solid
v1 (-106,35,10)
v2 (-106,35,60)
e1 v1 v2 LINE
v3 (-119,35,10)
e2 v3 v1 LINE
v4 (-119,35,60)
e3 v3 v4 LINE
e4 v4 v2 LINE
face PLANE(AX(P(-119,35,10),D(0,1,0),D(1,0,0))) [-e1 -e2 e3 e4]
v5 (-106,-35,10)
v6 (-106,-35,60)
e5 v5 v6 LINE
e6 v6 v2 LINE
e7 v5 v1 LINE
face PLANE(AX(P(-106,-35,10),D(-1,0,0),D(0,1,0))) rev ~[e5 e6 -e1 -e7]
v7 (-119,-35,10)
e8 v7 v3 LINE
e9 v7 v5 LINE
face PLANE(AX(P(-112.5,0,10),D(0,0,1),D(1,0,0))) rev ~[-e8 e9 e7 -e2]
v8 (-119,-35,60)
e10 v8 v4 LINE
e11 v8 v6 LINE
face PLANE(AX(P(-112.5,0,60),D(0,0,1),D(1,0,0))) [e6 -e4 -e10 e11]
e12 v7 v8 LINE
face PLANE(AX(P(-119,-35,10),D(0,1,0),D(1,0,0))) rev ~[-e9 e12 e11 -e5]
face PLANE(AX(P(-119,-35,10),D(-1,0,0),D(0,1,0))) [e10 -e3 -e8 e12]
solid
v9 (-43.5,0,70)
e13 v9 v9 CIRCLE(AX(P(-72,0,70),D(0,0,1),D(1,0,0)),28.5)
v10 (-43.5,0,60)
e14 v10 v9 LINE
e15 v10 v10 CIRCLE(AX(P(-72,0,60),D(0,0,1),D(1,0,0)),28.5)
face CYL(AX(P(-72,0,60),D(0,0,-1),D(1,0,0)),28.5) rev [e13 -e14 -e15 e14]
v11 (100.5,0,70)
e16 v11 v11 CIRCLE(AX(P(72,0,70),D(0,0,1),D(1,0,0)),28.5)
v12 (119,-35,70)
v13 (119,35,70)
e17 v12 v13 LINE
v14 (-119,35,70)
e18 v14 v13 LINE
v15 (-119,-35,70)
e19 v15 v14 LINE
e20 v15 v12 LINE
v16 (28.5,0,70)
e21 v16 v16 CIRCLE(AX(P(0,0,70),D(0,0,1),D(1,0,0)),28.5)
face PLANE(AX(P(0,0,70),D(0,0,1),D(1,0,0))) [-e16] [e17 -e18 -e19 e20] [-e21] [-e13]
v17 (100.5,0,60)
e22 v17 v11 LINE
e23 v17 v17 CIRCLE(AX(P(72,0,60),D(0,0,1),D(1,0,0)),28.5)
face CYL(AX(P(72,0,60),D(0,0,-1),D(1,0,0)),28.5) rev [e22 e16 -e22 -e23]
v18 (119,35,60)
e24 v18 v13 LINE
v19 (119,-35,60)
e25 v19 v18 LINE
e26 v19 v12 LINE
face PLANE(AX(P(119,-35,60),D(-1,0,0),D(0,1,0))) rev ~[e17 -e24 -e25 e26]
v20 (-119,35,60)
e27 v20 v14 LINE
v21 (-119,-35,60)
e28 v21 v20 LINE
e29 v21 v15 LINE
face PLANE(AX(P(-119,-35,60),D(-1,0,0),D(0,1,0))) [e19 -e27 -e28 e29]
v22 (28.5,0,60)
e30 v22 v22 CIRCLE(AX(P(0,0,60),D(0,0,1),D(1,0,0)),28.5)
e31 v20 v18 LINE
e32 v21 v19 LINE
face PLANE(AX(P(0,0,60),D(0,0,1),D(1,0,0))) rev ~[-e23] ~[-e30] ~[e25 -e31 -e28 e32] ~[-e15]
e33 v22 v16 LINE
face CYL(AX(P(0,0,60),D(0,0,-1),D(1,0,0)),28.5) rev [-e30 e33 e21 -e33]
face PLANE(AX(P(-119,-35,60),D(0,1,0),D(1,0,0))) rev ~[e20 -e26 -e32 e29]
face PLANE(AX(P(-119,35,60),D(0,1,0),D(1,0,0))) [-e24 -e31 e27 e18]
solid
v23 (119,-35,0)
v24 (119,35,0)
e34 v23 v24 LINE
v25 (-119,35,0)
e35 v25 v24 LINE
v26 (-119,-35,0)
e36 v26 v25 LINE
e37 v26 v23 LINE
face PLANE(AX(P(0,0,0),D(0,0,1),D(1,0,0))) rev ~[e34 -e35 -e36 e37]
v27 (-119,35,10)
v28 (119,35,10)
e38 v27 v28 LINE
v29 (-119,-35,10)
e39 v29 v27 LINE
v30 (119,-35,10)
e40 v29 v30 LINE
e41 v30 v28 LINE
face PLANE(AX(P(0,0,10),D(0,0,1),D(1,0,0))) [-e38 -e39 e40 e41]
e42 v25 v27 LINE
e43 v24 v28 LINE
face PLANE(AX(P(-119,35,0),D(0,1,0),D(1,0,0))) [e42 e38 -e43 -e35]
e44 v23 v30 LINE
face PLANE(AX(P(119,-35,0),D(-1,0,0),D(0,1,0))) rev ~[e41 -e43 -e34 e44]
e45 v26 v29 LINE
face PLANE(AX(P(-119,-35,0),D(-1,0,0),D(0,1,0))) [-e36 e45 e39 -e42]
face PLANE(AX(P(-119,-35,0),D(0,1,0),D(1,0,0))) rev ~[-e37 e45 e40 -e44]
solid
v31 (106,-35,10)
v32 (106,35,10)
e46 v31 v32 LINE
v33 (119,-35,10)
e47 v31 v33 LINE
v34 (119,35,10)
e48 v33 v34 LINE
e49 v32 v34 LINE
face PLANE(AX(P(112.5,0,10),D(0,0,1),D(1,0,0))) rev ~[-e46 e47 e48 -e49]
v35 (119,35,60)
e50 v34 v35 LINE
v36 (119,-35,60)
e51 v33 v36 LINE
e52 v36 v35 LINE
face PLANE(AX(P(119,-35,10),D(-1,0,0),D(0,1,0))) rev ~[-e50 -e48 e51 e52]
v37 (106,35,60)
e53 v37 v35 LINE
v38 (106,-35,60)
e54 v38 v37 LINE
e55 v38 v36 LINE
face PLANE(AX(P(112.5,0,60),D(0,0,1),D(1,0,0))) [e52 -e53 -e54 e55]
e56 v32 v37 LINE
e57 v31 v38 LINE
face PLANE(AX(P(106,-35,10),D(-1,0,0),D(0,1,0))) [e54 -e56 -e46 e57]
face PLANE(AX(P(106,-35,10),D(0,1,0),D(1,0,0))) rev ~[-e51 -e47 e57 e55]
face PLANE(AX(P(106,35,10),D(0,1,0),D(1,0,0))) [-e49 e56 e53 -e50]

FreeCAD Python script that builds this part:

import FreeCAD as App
import Part
import Sketcher
from FreeCAD import Vector
Q = App.Units.Quantity


def add_polygon(sketch, points):
    """Adds a closed chain of lines whose ends are joined by coincident constraints."""
    first, n = sketch.GeometryCount, len(points)
    for a, b in zip(points, points[1:] + points[:1]):
        sketch.addGeometry(Part.LineSegment(App.Vector(*a, 0), App.Vector(*b, 0)), False)
    for i in range(n):
        sketch.addConstraint(Sketcher.Constraint("Coincident", first + i, 2, first + (i + 1) % n, 1))

doc = App.newDocument("Part")
body = doc.addObject("PartDesign::Body", "Body")

sketch1 = body.newObject("Sketcher::SketchObject", "Sketch")
sketch1.AttachmentSupport = (doc.getObject("XY_Plane"), [""])
sketch1.MapMode = "FlatFace"
add_polygon(sketch1, [(-119, 35), (-119, -35), (119, -35), (119, 35)])
sketch1.addConstraint([
    Sketcher.Constraint("Vertical", 0),
    Sketcher.Constraint("Horizontal", 1),
    Sketcher.Constraint("Vertical", 2),
    Sketcher.Constraint("Horizontal", 3),
    Sketcher.Constraint("Symmetric", 0, 2, 2, 2, -1, 1),
    Sketcher.Constraint("DistanceX", 1, 1, 1, 2, Q("238 mm")),
    Sketcher.Constraint("DistanceY", 0, 2, 0, 1, Q("70 mm")),
])
pad1 = body.newObject("PartDesign::Pad", "Pad")
pad1.Profile = sketch1
pad1.Length = 10
body2 = doc.addObject("PartDesign::Body", "Body001")

sketch2 = body2.newObject("Sketcher::SketchObject", "Sketch001")
sketch2.AttachmentSupport = (doc.getObject("XY_Plane001"), [""])
sketch2.MapMode = "FlatFace"
sketch2.AttachmentOffset = App.Placement(Vector(0, 0, 60), App.Rotation())
add_polygon(sketch2, [(-119, 35), (-119, -35), (119, -35), (119, 35)])
sketch2.addGeometry(Part.Circle(Vector(-72, 0, 0), Vector(0, 0, 1), 28), False)
sketch2.addGeometry(Part.Circle(Vector(0, 0, 0), Vector(0, 0, 1), 28), False)
sketch2.addGeometry(Part.Circle(Vector(72, 0, 0), Vector(0, 0, 1), 28), False)
sketch2.addConstraint([
    Sketcher.Constraint("Vertical", 0),
    Sketcher.Constraint("Horizontal", 1),
    Sketcher.Constraint("Vertical", 2),
    Sketcher.Constraint("Horizontal", 3),
    Sketcher.Constraint("Coincident", 5, 3, -1, 1),
    Sketcher.Constraint("Equal", 4, 5),
    Sketcher.Constraint("Equal", 5, 6),
    Sketcher.Constraint("Symmetric", 4, 3, 6, 3, -1, 1),
    Sketcher.Constraint("Symmetric", 0, 2, 2, 2, -1, 1),
    Sketcher.Constraint("PointOnObject", 4, 3, -1),
    Sketcher.Constraint("Diameter", 4, Q("57 mm")),
    Sketcher.Constraint("DistanceX", 1, 1, 1, 2, Q("238 mm")),
    Sketcher.Constraint("DistanceY", 0, 2, 0, 1, Q("70 mm")),
    Sketcher.Constraint("DistanceX", 4, 3, -1, 1, Q("72 mm")),
])
pad2 = body2.newObject("PartDesign::Pad", "Pad001")
pad2.Profile = sketch2
pad2.Length = 10
body3 = doc.addObject("PartDesign::Body", "Body002")
body3.AllowCompound = True

sketch3 = body3.newObject("Sketcher::SketchObject", "Sketch002")
sketch3.AttachmentSupport = (doc.getObject("XY_Plane002"), [""])
sketch3.MapMode = "FlatFace"
sketch3.AttachmentOffset = App.Placement(Vector(0, 0, 10), App.Rotation())
add_polygon(sketch3, [(-119, 35), (-119, -35), (-106, -35), (-106, 35)])
add_polygon(sketch3, [(106, 35), (106, -35), (119, -35), (119, 35)])
sketch3.addConstraint([
    Sketcher.Constraint("Vertical", 0),
    Sketcher.Constraint("Horizontal", 1),
    Sketcher.Constraint("Vertical", 2),
    Sketcher.Constraint("Horizontal", 3),
    Sketcher.Constraint("Vertical", 4),
    Sketcher.Constraint("Horizontal", 5),
    Sketcher.Constraint("Vertical", 6),
    Sketcher.Constraint("Horizontal", 7),
    Sketcher.Constraint("Symmetric", 2, 2, 4, 2, -1, 1),
    Sketcher.Constraint("Symmetric", 0, 2, 6, 2, -1, 1),
    Sketcher.Constraint("Horizontal", 1, 2, 4, 2),
    Sketcher.Constraint("DistanceX", 1, 1, 1, 2, Q("13 mm")),
    Sketcher.Constraint("DistanceY", 0, 2, 0, 1, Q("70 mm")),
    Sketcher.Constraint("DistanceX", 0, 2, -1, 1, Q("119 mm")),
])
pad3 = body3.newObject("PartDesign::Pad", "Pad002")
pad3.Profile = sketch3
pad3.Length = 50

doc.recompute()
